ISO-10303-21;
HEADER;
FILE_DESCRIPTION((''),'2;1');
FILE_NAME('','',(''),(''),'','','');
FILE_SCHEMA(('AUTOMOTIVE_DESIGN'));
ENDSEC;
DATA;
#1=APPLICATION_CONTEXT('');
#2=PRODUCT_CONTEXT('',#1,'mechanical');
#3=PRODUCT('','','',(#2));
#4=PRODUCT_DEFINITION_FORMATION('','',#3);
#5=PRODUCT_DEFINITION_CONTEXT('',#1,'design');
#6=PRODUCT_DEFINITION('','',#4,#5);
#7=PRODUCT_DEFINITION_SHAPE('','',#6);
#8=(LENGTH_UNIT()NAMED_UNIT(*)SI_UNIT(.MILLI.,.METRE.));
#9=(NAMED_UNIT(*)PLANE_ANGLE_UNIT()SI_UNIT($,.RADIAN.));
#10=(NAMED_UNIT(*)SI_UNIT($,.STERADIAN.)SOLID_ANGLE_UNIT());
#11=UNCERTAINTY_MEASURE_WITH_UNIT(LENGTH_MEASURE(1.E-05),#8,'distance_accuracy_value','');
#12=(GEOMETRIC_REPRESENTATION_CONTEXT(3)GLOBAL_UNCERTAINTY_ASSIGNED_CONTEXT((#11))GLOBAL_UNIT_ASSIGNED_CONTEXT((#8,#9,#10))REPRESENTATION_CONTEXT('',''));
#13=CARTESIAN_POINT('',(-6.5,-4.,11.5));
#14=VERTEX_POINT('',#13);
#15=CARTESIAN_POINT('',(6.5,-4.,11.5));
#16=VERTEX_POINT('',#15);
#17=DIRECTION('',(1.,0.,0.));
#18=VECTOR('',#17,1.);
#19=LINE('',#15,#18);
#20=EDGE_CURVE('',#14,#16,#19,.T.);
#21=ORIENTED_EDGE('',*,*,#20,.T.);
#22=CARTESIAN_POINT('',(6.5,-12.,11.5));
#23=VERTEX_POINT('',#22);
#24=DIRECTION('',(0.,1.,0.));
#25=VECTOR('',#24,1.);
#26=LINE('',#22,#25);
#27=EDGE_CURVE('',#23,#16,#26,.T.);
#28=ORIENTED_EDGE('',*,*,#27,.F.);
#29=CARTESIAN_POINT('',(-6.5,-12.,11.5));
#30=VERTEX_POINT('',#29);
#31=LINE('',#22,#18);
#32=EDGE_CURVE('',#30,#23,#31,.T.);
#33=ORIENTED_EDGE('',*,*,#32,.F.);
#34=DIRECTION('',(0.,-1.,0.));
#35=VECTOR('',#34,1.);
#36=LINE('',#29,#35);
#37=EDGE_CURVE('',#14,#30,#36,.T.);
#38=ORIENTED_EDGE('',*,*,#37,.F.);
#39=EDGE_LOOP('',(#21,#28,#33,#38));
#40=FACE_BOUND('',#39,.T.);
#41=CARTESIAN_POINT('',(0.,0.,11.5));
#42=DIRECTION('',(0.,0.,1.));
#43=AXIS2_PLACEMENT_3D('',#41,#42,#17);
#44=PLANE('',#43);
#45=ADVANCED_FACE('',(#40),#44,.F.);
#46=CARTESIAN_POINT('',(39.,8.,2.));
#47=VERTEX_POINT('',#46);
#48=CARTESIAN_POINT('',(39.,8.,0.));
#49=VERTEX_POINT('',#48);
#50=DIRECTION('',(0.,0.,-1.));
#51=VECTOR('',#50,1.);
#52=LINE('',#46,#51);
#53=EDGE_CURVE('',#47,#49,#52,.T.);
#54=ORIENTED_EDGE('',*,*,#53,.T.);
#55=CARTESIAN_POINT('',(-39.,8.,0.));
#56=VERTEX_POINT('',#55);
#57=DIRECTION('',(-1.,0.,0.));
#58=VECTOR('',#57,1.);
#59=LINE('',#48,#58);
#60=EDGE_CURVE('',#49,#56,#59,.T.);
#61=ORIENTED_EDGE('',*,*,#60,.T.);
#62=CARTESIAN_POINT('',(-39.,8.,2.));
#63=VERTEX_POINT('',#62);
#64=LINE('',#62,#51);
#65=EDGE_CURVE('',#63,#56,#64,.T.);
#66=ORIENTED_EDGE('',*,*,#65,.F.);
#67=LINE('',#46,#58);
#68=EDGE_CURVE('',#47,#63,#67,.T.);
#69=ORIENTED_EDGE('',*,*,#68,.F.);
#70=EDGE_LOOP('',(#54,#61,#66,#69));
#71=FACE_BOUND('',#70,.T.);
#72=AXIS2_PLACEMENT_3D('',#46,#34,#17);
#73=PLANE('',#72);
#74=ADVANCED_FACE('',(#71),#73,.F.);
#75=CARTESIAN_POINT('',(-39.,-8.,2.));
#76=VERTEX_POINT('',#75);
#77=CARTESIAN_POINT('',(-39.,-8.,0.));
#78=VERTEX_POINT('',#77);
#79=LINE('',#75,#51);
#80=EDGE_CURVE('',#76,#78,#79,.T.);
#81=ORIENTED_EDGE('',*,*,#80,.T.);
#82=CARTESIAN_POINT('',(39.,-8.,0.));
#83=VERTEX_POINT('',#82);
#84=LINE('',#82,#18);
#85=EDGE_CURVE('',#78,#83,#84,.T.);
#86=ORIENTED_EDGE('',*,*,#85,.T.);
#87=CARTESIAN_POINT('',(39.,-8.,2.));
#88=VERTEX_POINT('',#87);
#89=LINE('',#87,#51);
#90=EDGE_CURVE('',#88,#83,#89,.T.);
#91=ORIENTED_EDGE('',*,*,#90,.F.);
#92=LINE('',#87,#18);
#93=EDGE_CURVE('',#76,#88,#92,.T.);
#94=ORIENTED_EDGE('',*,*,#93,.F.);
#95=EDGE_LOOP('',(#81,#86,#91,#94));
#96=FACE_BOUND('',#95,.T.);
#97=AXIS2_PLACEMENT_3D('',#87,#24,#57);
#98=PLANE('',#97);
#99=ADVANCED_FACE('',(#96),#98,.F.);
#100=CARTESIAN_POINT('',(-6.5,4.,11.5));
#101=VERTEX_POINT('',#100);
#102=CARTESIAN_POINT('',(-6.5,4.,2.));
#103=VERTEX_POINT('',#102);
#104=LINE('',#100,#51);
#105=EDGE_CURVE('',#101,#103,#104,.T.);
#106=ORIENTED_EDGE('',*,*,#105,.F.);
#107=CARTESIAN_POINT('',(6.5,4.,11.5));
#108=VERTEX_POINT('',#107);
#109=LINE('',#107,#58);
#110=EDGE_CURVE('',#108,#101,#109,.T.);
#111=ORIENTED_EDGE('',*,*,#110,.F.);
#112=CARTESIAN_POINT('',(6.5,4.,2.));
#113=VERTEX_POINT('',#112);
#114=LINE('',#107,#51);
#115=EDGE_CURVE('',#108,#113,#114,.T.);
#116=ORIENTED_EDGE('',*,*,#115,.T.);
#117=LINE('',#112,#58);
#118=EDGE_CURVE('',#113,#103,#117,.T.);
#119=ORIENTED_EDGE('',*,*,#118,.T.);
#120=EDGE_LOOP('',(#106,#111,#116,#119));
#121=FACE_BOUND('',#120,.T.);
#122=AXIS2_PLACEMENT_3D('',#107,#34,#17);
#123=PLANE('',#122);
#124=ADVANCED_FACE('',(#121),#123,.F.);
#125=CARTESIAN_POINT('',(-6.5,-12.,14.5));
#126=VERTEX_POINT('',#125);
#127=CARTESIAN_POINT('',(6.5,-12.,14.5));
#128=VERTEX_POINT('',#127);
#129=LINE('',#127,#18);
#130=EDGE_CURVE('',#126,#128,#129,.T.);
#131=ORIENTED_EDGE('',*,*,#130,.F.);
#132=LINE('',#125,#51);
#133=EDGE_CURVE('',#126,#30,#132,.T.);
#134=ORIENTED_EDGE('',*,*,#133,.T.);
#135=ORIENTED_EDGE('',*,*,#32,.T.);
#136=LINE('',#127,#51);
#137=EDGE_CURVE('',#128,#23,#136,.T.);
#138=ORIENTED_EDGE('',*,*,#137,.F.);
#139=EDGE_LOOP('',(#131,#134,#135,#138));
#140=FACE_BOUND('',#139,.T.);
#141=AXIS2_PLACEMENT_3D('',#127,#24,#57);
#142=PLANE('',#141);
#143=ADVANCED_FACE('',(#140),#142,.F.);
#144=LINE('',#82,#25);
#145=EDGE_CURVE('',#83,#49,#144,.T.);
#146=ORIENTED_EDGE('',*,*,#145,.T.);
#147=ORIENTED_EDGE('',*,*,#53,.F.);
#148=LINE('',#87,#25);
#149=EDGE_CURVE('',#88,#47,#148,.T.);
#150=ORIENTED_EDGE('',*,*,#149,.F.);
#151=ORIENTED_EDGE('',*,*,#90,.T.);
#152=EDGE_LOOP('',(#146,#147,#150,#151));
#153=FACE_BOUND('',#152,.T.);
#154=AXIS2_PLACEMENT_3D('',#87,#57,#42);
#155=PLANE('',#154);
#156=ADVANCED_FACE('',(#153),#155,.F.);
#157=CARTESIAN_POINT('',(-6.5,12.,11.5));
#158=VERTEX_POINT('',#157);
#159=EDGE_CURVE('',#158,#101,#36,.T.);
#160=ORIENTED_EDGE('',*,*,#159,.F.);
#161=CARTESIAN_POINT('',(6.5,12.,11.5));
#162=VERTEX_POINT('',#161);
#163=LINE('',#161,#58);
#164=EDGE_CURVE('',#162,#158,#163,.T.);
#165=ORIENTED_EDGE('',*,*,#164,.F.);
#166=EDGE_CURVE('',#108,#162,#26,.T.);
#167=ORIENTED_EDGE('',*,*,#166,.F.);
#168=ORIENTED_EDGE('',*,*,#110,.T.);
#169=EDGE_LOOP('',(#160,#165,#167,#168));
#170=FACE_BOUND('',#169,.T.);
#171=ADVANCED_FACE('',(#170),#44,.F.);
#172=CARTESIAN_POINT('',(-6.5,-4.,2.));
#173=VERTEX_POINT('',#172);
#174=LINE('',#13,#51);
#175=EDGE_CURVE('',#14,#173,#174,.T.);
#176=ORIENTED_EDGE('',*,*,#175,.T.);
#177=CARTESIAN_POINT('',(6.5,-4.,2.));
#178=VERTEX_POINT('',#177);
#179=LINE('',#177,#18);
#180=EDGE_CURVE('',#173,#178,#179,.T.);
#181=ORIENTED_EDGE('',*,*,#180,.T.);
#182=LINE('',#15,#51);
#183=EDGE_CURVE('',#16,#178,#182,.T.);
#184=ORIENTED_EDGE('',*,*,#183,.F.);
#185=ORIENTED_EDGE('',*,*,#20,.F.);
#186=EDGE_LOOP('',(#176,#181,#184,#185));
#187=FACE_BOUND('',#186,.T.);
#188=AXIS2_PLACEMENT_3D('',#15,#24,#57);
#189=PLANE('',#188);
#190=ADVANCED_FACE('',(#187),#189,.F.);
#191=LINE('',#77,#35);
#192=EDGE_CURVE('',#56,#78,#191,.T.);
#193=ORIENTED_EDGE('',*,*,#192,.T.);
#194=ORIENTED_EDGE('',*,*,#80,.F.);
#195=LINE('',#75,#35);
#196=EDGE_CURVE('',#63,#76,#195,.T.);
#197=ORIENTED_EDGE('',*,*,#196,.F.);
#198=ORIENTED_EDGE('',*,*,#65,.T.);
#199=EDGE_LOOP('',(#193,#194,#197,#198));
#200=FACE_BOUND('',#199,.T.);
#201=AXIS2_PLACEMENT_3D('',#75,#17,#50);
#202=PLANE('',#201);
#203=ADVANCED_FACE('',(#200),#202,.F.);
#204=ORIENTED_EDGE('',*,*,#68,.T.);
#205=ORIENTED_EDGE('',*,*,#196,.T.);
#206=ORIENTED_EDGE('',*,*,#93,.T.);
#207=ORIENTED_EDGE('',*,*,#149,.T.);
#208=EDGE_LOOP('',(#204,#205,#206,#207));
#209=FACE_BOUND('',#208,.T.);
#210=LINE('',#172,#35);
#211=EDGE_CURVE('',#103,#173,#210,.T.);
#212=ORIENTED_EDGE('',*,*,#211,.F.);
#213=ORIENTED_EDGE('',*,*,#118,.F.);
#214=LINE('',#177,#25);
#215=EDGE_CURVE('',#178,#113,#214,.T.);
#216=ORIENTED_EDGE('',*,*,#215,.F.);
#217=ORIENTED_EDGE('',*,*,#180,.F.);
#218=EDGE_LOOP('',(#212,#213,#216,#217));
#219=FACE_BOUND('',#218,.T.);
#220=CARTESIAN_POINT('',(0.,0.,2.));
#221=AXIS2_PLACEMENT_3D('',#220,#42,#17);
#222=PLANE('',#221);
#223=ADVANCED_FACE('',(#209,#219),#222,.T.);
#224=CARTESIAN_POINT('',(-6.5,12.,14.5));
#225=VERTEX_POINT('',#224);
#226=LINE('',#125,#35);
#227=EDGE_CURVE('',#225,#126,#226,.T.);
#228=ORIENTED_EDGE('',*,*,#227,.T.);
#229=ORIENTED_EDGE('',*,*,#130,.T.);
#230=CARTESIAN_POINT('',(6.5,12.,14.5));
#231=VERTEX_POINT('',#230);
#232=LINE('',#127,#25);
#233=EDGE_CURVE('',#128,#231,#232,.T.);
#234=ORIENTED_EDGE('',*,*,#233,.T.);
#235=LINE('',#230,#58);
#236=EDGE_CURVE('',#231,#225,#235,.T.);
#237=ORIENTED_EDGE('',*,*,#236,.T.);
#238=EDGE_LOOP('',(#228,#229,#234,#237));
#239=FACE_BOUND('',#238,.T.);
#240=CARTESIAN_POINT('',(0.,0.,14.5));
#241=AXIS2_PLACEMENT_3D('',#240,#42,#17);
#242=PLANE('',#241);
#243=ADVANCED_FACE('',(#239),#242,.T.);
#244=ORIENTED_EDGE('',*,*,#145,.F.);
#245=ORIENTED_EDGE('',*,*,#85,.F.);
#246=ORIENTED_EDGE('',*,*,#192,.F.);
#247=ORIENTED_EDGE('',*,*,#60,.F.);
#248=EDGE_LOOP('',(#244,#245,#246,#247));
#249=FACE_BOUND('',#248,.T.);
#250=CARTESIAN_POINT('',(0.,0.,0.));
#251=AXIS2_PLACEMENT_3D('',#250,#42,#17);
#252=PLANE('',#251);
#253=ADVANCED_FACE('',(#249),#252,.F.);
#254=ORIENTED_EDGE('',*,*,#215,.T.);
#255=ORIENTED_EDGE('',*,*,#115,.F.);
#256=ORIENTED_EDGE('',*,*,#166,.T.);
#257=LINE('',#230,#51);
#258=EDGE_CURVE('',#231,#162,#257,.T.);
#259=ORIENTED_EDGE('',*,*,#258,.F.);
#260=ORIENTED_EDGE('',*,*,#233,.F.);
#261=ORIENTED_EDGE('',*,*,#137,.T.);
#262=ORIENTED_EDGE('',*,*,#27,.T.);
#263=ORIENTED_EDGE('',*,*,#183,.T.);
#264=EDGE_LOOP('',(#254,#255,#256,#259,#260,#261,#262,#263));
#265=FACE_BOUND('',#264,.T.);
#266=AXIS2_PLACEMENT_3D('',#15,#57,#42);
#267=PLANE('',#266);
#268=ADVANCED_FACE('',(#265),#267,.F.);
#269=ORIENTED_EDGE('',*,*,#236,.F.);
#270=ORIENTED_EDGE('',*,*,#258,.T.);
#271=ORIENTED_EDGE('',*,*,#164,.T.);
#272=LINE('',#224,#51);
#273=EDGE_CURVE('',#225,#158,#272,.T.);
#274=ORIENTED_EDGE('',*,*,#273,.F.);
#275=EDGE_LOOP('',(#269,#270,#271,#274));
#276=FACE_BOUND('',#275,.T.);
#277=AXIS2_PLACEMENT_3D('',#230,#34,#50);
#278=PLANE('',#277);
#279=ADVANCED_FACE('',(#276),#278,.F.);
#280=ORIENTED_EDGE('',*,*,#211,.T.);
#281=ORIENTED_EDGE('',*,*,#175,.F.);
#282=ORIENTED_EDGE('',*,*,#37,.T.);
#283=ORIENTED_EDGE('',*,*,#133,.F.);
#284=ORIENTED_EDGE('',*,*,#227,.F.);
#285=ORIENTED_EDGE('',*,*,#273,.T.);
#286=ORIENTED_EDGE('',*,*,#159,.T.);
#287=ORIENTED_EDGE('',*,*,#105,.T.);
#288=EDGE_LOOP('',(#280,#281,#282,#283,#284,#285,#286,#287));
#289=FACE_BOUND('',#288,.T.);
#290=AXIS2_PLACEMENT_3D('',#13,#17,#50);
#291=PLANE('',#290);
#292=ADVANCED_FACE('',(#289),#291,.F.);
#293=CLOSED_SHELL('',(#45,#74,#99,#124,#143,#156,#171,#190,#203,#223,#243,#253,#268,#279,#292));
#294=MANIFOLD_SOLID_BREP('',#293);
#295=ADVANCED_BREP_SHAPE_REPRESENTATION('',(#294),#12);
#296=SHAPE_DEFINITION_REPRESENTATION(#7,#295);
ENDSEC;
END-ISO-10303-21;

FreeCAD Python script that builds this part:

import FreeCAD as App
import Part
import Sketcher

doc = App.newDocument("Part")
body = doc.addObject("PartDesign::Body", "Body")

sketch1 = body.newObject("Sketcher::SketchObject", "Sketch")
sketch1.AttachmentSupport = (doc.getObject("XY_Plane"), [""])
sketch1.MapMode = "FlatFace"
sketch1.addGeometry(Part.LineSegment(App.Vector(-39, 8, 0), App.Vector(-39, -8, 0)), False)
sketch1.addGeometry(Part.LineSegment(App.Vector(-39, -8, 0), App.Vector(39, -8, 0)), False)
sketch1.addGeometry(Part.LineSegment(App.Vector(39, -8, 0), App.Vector(39, 8, 0)), False)
sketch1.addGeometry(Part.LineSegment(App.Vector(39, 8, 0), App.Vector(-39, 8, 0)), False)
sketch1.addConstraint(Sketcher.Constraint("Coincident", 0, 2, 1, 1))
sketch1.addConstraint(Sketcher.Constraint("Coincident", 1, 2, 2, 1))
sketch1.addConstraint(Sketcher.Constraint("Coincident", 2, 2, 3, 1))
sketch1.addConstraint(Sketcher.Constraint("Coincident", 3, 2, 0, 1))
sketch1.addConstraint(Sketcher.Constraint("Vertical", 0))
sketch1.addConstraint(Sketcher.Constraint("Horizontal", 1))
sketch1.addConstraint(Sketcher.Constraint("Vertical", 2))
sketch1.addConstraint(Sketcher.Constraint("Horizontal", 3))
sketch1.addConstraint(Sketcher.Constraint("Symmetric", 0, 2, 2, 2, -1, 1))
sketch1.addConstraint(Sketcher.Constraint("DistanceX", 1, 1, 1, 2, 78.0))
sketch1.addConstraint(Sketcher.Constraint("DistanceY", 0, 2, 0, 1, 16.0))
pad1 = body.newObject("PartDesign::Pad", "Pad")
pad1.Profile = sketch1
pad1.Length = 2

sketch2 = body.newObject("Sketcher::SketchObject", "Sketch001")
sketch2.AttachmentSupport = (doc.getObject("XY_Plane"), [""])
sketch2.MapMode = "FlatFace"
sketch2.AttachmentOffset = App.Placement(App.Vector(0, 0, 2), App.Rotation())
sketch2.addGeometry(Part.LineSegment(App.Vector(-6, 4, 0), App.Vector(-6, -4, 0)), False)
sketch2.addGeometry(Part.LineSegment(App.Vector(-6, -4, 0), App.Vector(6, -4, 0)), False)
sketch2.addGeometry(Part.LineSegment(App.Vector(6, -4, 0), App.Vector(6, 4, 0)), False)
sketch2.addGeometry(Part.LineSegment(App.Vector(6, 4, 0), App.Vector(-6, 4, 0)), False)
sketch2.addConstraint(Sketcher.Constraint("Coincident", 0, 2, 1, 1))
sketch2.addConstraint(Sketcher.Constraint("Coincident", 1, 2, 2, 1))
sketch2.addConstraint(Sketcher.Constraint("Coincident", 2, 2, 3, 1))
sketch2.addConstraint(Sketcher.Constraint("Coincident", 3, 2, 0, 1))
sketch2.addConstraint(Sketcher.Constraint("Vertical", 0))
sketch2.addConstraint(Sketcher.Constraint("Horizontal", 1))
sketch2.addConstraint(Sketcher.Constraint("Vertical", 2))
sketch2.addConstraint(Sketcher.Constraint("Horizontal", 3))
sketch2.addConstraint(Sketcher.Constraint("Symmetric", 0, 2, 2, 2, -1, 1))
sketch2.addConstraint(Sketcher.Constraint("DistanceX", 1, 1, 1, 2, 13.0))
sketch2.addConstraint(Sketcher.Constraint("DistanceY", 0, 2, 0, 1, 8.0))
pad2 = body.newObject("PartDesign::Pad", "Pad001")
pad2.Profile = sketch2
pad2.Length = 9.5

sketch3 = body.newObject("Sketcher::SketchObject", "Sketch002")
sketch3.AttachmentSupport = (doc.getObject("XY_Plane"), [""])
sketch3.MapMode = "FlatFace"
sketch3.AttachmentOffset = App.Placement(App.Vector(0, 0, 11.5), App.Rotation())
sketch3.addGeometry(Part.LineSegment(App.Vector(-6, 12, 0), App.Vector(-6, -12, 0)), False)
sketch3.addGeometry(Part.LineSegment(App.Vector(-6, -12, 0), App.Vector(6, -12, 0)), False)
sketch3.addGeometry(Part.LineSegment(App.Vector(6, -12, 0), App.Vector(6, 12, 0)), False)
sketch3.addGeometry(Part.LineSegment(App.Vector(6, 12, 0), App.Vector(-6, 12, 0)), False)
sketch3.addConstraint(Sketcher.Constraint("Coincident", 0, 2, 1, 1))
sketch3.addConstraint(Sketcher.Constraint("Coincident", 1, 2, 2, 1))
sketch3.addConstraint(Sketcher.Constraint("Coincident", 2, 2, 3, 1))
sketch3.addConstraint(Sketcher.Constraint("Coincident", 3, 2, 0, 1))
sketch3.addConstraint(Sketcher.Constraint("Vertical", 0))
sketch3.addConstraint(Sketcher.Constraint("Horizontal", 1))
sketch3.addConstraint(Sketcher.Constraint("Vertical", 2))
sketch3.addConstraint(Sketcher.Constraint("Horizontal", 3))
sketch3.addConstraint(Sketcher.Constraint("Symmetric", 0, 2, 2, 2, -1, 1))
sketch3.addConstraint(Sketcher.Constraint("DistanceX", 1, 1, 1, 2, 13.0))
sketch3.addConstraint(Sketcher.Constraint("DistanceY", 0, 2, 0, 1, 24.0))
pad3 = body.newObject("PartDesign::Pad", "Pad002")
pad3.Profile = sketch3
pad3.Length = 3

doc.recompute()
